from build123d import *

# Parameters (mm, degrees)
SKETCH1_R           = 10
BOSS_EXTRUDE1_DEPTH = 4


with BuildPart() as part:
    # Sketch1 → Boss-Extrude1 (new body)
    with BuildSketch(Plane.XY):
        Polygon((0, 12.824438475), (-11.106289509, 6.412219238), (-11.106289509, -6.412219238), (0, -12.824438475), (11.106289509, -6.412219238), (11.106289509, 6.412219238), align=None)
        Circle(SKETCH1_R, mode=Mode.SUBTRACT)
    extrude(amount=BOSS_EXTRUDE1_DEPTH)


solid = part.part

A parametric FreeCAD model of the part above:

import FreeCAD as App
import Part
import Sketcher
Q = App.Units.Quantity


def add_polygon(sketch, points):
    """Adds a closed chain of lines whose ends are joined by coincident constraints."""
    first, n = sketch.GeometryCount, len(points)
    for a, b in zip(points, points[1:] + points[:1]):
        sketch.addGeometry(Part.LineSegment(App.Vector(*a, 0), App.Vector(*b, 0)), False)
    for i in range(n):
        sketch.addConstraint(Sketcher.Constraint("Coincident", first + i, 2, first + (i + 1) % n, 1))

doc = App.newDocument("Part")
params = doc.addObject("Spreadsheet::Sheet", "Params")
for row, (alias, value) in enumerate([
    ("sketch1_diameter", "20 mm"),
    ("pad1_length", "4 mm"),
], start=1):
    params.set(f"A{row}", alias)
    params.set(f"B{row}", "=" + value)
    params.setAlias(f"B{row}", alias)

body = doc.addObject("PartDesign::Body", "Body")

# Sketch on XY plane
sketch1 = body.newObject("Sketcher::SketchObject", "Sketch")
sketch1.AttachmentSupport = (doc.getObject("XY_Plane"), [""])
sketch1.MapMode = "FlatFace"
add_polygon(sketch1, [(0, 13), (-11, 6), (-11, -6), (0, -13), (11, -6), (11, 6)])  # lines 0-5
sketch1.addGeometry(Part.Circle(App.Vector(0, 0, 0), App.Vector(0, 0, 1), 10), False)  # 6
sketch1.addConstraint(Sketcher.Constraint("Vertical", 1))
sketch1.addConstraint(Sketcher.Constraint("Vertical", 4))
sketch1.addConstraint(Sketcher.Constraint("Coincident", 6, 3, -1, 1))
sketch1.addConstraint(Sketcher.Constraint("Symmetric", 0, 2, 3, 2, -1, 1))
sketch1.addConstraint(Sketcher.Constraint("Symmetric", 2, 2, 5, 2, -1, 1))
sketch1.addConstraint(Sketcher.Constraint("PointOnObject", 2, 2, -2))
sketch1.addConstraint(Sketcher.Constraint("Parallel", 2, 5))
sketch1.addConstraint(Sketcher.Constraint("Horizontal", 1, 2, 3, 2))
sketch1.addConstraint(Sketcher.Constraint("Diameter", 6, 20.0))
sketch1.addConstraint(Sketcher.Constraint("Angle", 0, Q("-150 deg")))
sketch1.addConstraint(Sketcher.Constraint("DistanceY", 1, 2, 1, 1, 12.824438))
sketch1.addConstraint(Sketcher.Constraint("Distance", 0, 12.824438))
sketch1.setExpression("Constraints[14]", "Params.sketch1_diameter")
pad1 = body.newObject("PartDesign::Pad", "Pad")
pad1.Profile = sketch1
pad1.setExpression("Length", "Params.pad1_length")

doc.recompute()
